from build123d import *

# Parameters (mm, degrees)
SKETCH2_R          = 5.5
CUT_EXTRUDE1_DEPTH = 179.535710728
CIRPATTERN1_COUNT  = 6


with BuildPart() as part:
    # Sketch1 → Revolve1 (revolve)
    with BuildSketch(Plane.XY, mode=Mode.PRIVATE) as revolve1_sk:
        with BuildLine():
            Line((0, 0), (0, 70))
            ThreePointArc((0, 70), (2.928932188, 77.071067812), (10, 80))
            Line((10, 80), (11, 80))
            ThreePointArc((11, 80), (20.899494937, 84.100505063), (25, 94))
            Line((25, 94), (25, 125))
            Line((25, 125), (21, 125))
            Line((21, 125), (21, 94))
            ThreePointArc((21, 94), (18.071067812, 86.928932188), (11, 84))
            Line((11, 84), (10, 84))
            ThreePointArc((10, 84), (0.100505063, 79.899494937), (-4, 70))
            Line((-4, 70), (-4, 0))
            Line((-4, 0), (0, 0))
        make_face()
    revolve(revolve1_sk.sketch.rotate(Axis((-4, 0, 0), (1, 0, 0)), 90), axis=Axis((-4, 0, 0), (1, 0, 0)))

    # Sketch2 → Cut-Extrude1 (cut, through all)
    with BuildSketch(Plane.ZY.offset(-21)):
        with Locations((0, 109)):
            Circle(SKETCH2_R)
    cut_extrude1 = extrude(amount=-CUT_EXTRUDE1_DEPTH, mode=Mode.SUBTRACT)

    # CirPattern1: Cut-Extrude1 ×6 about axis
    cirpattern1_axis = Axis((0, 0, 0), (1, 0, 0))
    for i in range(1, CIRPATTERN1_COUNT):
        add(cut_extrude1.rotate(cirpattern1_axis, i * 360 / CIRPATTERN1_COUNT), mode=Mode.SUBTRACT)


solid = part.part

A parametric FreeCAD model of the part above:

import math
import FreeCAD as App
import Part
import Sketcher
Q = App.Units.Quantity

doc = App.newDocument("Part")
body = doc.addObject("PartDesign::Body", "Body")

# Sketch on XY plane
sketch1 = body.newObject("Sketcher::SketchObject", "Sketch")
sketch1.AttachmentSupport = (doc.getObject("XY_Plane"), [""])
sketch1.MapMode = "FlatFace"
sketch1.addGeometry([
    Part.LineSegment(App.Vector(0, 0, 0), App.Vector(0, 70, 0)),  # 0
    Part.ArcOfCircle(Part.Circle(App.Vector(10, 70, 0), App.Vector(0, 0, 1), 10), math.radians(90), math.radians(180)),  # 1
    Part.LineSegment(App.Vector(10, 80, 0), App.Vector(11, 80, 0)),  # 2
    Part.ArcOfCircle(Part.Circle(App.Vector(11, 94, 0), App.Vector(0, 0, 1), 14), math.radians(-90), math.radians(0)),  # 3
    Part.LineSegment(App.Vector(25, 94, 0), App.Vector(25, 125, 0)),  # 4
    Part.LineSegment(App.Vector(25, 125, 0), App.Vector(21, 125, 0)),  # 5
    Part.LineSegment(App.Vector(21, 125, 0), App.Vector(21, 94, 0)),  # 6
    Part.ArcOfCircle(Part.Circle(App.Vector(11, 94, 0), App.Vector(0, 0, 1), 10), math.radians(-90), math.radians(0)),  # 7
    Part.LineSegment(App.Vector(11, 84, 0), App.Vector(10, 84, 0)),  # 8
    Part.ArcOfCircle(Part.Circle(App.Vector(10, 70, 0), App.Vector(0, 0, 1), 14), math.radians(90), math.radians(180)),  # 9
    Part.LineSegment(App.Vector(-4, 70, 0), App.Vector(-4, 0, 0)),  # 10
    Part.LineSegment(App.Vector(-4, 0, 0), App.Vector(0, 0, 0)),  # 11
], False)
sketch1.addConstraint([
    Sketcher.Constraint("Tangent", 0, 2, 1, 2),
    Sketcher.Constraint("Tangent", 1, 1, 2, 1),
    Sketcher.Constraint("Tangent", 2, 2, 3, 1),
    Sketcher.Constraint("Tangent", 3, 2, 4, 1),
    Sketcher.Constraint("Coincident", 4, 2, 5, 1),
    Sketcher.Constraint("Coincident", 5, 2, 6, 1),
    Sketcher.Constraint("Tangent", 6, 2, 7, 2),
    Sketcher.Constraint("Tangent", 7, 1, 8, 1),
    Sketcher.Constraint("Tangent", 8, 2, 9, 1),
    Sketcher.Constraint("Tangent", 9, 2, 10, 1),
    Sketcher.Constraint("Coincident", 10, 2, 11, 1),
    Sketcher.Constraint("Coincident", 11, 2, 0, 1),
    Sketcher.Constraint("Vertical", 0),
    Sketcher.Constraint("Horizontal", 2),
    Sketcher.Constraint("Vertical", 4),
    Sketcher.Constraint("Horizontal", 5),
    Sketcher.Constraint("Vertical", 6),
    Sketcher.Constraint("Horizontal", 8),
    Sketcher.Constraint("Vertical", 10),
    Sketcher.Constraint("Horizontal", 11),
    Sketcher.Constraint("Coincident", 11, 2, -1, 1),
    Sketcher.Constraint("Coincident", 7, 3, 3, 3),
    Sketcher.Constraint("Coincident", 9, 3, 1, 3),
    Sketcher.Constraint("Equal", 1, 7),
    Sketcher.Constraint("Radius", 1, Q("10 mm")),
    Sketcher.Constraint("Radius", 3, Q("14 mm")),
    Sketcher.Constraint("DistanceX", 2, 1, 2, 2, Q("1 mm")),
    Sketcher.Constraint("DistanceY", 0, 1, 0, 2, Q("70 mm")),
    Sketcher.Constraint("DistanceY", 4, 1, 4, 2, Q("31 mm")),
])
revolution = body.newObject("PartDesign::Revolution", "Revolution")
revolution.Profile = sketch1
revolution.ReferenceAxis = (sketch1, ["H_Axis"])
revolution.Angle = 360

# Sketch on YZ plane
sketch2 = body.newObject("Sketcher::SketchObject", "Sketch001")
sketch2.AttachmentSupport = (doc.getObject("YZ_Plane"), [""])
sketch2.MapMode = "FlatFace"
sketch2.AttachmentOffset = App.Placement(App.Vector(0, 0, 21), App.Rotation())
sketch2.addGeometry(Part.Circle(App.Vector(109, 0, 0), App.Vector(0, 0, 1), 5.5), False)
sketch2.addConstraint([
    Sketcher.Constraint("PointOnObject", 0, 3, -1),
    Sketcher.Constraint("Diameter", 0, Q("11 mm")),
    Sketcher.Constraint("DistanceX", -1, 1, 0, 3, Q("109 mm")),
])
pocket1 = body.newObject("PartDesign::Pocket", "Pocket")
pocket1.Profile = sketch2
pocket1.Type = "ThroughAll"
pocket1.Reversed = True
doc.recompute()

polarpattern = body.newObject("PartDesign::PolarPattern", "PolarPattern")
polarpattern.Originals = [pocket1]
polarpattern.Axis = (doc.getObject("X_Axis"), [""])
polarpattern.Angle = 360
polarpattern.Occurrences = 6
body.Tip = polarpattern

doc.recompute()
